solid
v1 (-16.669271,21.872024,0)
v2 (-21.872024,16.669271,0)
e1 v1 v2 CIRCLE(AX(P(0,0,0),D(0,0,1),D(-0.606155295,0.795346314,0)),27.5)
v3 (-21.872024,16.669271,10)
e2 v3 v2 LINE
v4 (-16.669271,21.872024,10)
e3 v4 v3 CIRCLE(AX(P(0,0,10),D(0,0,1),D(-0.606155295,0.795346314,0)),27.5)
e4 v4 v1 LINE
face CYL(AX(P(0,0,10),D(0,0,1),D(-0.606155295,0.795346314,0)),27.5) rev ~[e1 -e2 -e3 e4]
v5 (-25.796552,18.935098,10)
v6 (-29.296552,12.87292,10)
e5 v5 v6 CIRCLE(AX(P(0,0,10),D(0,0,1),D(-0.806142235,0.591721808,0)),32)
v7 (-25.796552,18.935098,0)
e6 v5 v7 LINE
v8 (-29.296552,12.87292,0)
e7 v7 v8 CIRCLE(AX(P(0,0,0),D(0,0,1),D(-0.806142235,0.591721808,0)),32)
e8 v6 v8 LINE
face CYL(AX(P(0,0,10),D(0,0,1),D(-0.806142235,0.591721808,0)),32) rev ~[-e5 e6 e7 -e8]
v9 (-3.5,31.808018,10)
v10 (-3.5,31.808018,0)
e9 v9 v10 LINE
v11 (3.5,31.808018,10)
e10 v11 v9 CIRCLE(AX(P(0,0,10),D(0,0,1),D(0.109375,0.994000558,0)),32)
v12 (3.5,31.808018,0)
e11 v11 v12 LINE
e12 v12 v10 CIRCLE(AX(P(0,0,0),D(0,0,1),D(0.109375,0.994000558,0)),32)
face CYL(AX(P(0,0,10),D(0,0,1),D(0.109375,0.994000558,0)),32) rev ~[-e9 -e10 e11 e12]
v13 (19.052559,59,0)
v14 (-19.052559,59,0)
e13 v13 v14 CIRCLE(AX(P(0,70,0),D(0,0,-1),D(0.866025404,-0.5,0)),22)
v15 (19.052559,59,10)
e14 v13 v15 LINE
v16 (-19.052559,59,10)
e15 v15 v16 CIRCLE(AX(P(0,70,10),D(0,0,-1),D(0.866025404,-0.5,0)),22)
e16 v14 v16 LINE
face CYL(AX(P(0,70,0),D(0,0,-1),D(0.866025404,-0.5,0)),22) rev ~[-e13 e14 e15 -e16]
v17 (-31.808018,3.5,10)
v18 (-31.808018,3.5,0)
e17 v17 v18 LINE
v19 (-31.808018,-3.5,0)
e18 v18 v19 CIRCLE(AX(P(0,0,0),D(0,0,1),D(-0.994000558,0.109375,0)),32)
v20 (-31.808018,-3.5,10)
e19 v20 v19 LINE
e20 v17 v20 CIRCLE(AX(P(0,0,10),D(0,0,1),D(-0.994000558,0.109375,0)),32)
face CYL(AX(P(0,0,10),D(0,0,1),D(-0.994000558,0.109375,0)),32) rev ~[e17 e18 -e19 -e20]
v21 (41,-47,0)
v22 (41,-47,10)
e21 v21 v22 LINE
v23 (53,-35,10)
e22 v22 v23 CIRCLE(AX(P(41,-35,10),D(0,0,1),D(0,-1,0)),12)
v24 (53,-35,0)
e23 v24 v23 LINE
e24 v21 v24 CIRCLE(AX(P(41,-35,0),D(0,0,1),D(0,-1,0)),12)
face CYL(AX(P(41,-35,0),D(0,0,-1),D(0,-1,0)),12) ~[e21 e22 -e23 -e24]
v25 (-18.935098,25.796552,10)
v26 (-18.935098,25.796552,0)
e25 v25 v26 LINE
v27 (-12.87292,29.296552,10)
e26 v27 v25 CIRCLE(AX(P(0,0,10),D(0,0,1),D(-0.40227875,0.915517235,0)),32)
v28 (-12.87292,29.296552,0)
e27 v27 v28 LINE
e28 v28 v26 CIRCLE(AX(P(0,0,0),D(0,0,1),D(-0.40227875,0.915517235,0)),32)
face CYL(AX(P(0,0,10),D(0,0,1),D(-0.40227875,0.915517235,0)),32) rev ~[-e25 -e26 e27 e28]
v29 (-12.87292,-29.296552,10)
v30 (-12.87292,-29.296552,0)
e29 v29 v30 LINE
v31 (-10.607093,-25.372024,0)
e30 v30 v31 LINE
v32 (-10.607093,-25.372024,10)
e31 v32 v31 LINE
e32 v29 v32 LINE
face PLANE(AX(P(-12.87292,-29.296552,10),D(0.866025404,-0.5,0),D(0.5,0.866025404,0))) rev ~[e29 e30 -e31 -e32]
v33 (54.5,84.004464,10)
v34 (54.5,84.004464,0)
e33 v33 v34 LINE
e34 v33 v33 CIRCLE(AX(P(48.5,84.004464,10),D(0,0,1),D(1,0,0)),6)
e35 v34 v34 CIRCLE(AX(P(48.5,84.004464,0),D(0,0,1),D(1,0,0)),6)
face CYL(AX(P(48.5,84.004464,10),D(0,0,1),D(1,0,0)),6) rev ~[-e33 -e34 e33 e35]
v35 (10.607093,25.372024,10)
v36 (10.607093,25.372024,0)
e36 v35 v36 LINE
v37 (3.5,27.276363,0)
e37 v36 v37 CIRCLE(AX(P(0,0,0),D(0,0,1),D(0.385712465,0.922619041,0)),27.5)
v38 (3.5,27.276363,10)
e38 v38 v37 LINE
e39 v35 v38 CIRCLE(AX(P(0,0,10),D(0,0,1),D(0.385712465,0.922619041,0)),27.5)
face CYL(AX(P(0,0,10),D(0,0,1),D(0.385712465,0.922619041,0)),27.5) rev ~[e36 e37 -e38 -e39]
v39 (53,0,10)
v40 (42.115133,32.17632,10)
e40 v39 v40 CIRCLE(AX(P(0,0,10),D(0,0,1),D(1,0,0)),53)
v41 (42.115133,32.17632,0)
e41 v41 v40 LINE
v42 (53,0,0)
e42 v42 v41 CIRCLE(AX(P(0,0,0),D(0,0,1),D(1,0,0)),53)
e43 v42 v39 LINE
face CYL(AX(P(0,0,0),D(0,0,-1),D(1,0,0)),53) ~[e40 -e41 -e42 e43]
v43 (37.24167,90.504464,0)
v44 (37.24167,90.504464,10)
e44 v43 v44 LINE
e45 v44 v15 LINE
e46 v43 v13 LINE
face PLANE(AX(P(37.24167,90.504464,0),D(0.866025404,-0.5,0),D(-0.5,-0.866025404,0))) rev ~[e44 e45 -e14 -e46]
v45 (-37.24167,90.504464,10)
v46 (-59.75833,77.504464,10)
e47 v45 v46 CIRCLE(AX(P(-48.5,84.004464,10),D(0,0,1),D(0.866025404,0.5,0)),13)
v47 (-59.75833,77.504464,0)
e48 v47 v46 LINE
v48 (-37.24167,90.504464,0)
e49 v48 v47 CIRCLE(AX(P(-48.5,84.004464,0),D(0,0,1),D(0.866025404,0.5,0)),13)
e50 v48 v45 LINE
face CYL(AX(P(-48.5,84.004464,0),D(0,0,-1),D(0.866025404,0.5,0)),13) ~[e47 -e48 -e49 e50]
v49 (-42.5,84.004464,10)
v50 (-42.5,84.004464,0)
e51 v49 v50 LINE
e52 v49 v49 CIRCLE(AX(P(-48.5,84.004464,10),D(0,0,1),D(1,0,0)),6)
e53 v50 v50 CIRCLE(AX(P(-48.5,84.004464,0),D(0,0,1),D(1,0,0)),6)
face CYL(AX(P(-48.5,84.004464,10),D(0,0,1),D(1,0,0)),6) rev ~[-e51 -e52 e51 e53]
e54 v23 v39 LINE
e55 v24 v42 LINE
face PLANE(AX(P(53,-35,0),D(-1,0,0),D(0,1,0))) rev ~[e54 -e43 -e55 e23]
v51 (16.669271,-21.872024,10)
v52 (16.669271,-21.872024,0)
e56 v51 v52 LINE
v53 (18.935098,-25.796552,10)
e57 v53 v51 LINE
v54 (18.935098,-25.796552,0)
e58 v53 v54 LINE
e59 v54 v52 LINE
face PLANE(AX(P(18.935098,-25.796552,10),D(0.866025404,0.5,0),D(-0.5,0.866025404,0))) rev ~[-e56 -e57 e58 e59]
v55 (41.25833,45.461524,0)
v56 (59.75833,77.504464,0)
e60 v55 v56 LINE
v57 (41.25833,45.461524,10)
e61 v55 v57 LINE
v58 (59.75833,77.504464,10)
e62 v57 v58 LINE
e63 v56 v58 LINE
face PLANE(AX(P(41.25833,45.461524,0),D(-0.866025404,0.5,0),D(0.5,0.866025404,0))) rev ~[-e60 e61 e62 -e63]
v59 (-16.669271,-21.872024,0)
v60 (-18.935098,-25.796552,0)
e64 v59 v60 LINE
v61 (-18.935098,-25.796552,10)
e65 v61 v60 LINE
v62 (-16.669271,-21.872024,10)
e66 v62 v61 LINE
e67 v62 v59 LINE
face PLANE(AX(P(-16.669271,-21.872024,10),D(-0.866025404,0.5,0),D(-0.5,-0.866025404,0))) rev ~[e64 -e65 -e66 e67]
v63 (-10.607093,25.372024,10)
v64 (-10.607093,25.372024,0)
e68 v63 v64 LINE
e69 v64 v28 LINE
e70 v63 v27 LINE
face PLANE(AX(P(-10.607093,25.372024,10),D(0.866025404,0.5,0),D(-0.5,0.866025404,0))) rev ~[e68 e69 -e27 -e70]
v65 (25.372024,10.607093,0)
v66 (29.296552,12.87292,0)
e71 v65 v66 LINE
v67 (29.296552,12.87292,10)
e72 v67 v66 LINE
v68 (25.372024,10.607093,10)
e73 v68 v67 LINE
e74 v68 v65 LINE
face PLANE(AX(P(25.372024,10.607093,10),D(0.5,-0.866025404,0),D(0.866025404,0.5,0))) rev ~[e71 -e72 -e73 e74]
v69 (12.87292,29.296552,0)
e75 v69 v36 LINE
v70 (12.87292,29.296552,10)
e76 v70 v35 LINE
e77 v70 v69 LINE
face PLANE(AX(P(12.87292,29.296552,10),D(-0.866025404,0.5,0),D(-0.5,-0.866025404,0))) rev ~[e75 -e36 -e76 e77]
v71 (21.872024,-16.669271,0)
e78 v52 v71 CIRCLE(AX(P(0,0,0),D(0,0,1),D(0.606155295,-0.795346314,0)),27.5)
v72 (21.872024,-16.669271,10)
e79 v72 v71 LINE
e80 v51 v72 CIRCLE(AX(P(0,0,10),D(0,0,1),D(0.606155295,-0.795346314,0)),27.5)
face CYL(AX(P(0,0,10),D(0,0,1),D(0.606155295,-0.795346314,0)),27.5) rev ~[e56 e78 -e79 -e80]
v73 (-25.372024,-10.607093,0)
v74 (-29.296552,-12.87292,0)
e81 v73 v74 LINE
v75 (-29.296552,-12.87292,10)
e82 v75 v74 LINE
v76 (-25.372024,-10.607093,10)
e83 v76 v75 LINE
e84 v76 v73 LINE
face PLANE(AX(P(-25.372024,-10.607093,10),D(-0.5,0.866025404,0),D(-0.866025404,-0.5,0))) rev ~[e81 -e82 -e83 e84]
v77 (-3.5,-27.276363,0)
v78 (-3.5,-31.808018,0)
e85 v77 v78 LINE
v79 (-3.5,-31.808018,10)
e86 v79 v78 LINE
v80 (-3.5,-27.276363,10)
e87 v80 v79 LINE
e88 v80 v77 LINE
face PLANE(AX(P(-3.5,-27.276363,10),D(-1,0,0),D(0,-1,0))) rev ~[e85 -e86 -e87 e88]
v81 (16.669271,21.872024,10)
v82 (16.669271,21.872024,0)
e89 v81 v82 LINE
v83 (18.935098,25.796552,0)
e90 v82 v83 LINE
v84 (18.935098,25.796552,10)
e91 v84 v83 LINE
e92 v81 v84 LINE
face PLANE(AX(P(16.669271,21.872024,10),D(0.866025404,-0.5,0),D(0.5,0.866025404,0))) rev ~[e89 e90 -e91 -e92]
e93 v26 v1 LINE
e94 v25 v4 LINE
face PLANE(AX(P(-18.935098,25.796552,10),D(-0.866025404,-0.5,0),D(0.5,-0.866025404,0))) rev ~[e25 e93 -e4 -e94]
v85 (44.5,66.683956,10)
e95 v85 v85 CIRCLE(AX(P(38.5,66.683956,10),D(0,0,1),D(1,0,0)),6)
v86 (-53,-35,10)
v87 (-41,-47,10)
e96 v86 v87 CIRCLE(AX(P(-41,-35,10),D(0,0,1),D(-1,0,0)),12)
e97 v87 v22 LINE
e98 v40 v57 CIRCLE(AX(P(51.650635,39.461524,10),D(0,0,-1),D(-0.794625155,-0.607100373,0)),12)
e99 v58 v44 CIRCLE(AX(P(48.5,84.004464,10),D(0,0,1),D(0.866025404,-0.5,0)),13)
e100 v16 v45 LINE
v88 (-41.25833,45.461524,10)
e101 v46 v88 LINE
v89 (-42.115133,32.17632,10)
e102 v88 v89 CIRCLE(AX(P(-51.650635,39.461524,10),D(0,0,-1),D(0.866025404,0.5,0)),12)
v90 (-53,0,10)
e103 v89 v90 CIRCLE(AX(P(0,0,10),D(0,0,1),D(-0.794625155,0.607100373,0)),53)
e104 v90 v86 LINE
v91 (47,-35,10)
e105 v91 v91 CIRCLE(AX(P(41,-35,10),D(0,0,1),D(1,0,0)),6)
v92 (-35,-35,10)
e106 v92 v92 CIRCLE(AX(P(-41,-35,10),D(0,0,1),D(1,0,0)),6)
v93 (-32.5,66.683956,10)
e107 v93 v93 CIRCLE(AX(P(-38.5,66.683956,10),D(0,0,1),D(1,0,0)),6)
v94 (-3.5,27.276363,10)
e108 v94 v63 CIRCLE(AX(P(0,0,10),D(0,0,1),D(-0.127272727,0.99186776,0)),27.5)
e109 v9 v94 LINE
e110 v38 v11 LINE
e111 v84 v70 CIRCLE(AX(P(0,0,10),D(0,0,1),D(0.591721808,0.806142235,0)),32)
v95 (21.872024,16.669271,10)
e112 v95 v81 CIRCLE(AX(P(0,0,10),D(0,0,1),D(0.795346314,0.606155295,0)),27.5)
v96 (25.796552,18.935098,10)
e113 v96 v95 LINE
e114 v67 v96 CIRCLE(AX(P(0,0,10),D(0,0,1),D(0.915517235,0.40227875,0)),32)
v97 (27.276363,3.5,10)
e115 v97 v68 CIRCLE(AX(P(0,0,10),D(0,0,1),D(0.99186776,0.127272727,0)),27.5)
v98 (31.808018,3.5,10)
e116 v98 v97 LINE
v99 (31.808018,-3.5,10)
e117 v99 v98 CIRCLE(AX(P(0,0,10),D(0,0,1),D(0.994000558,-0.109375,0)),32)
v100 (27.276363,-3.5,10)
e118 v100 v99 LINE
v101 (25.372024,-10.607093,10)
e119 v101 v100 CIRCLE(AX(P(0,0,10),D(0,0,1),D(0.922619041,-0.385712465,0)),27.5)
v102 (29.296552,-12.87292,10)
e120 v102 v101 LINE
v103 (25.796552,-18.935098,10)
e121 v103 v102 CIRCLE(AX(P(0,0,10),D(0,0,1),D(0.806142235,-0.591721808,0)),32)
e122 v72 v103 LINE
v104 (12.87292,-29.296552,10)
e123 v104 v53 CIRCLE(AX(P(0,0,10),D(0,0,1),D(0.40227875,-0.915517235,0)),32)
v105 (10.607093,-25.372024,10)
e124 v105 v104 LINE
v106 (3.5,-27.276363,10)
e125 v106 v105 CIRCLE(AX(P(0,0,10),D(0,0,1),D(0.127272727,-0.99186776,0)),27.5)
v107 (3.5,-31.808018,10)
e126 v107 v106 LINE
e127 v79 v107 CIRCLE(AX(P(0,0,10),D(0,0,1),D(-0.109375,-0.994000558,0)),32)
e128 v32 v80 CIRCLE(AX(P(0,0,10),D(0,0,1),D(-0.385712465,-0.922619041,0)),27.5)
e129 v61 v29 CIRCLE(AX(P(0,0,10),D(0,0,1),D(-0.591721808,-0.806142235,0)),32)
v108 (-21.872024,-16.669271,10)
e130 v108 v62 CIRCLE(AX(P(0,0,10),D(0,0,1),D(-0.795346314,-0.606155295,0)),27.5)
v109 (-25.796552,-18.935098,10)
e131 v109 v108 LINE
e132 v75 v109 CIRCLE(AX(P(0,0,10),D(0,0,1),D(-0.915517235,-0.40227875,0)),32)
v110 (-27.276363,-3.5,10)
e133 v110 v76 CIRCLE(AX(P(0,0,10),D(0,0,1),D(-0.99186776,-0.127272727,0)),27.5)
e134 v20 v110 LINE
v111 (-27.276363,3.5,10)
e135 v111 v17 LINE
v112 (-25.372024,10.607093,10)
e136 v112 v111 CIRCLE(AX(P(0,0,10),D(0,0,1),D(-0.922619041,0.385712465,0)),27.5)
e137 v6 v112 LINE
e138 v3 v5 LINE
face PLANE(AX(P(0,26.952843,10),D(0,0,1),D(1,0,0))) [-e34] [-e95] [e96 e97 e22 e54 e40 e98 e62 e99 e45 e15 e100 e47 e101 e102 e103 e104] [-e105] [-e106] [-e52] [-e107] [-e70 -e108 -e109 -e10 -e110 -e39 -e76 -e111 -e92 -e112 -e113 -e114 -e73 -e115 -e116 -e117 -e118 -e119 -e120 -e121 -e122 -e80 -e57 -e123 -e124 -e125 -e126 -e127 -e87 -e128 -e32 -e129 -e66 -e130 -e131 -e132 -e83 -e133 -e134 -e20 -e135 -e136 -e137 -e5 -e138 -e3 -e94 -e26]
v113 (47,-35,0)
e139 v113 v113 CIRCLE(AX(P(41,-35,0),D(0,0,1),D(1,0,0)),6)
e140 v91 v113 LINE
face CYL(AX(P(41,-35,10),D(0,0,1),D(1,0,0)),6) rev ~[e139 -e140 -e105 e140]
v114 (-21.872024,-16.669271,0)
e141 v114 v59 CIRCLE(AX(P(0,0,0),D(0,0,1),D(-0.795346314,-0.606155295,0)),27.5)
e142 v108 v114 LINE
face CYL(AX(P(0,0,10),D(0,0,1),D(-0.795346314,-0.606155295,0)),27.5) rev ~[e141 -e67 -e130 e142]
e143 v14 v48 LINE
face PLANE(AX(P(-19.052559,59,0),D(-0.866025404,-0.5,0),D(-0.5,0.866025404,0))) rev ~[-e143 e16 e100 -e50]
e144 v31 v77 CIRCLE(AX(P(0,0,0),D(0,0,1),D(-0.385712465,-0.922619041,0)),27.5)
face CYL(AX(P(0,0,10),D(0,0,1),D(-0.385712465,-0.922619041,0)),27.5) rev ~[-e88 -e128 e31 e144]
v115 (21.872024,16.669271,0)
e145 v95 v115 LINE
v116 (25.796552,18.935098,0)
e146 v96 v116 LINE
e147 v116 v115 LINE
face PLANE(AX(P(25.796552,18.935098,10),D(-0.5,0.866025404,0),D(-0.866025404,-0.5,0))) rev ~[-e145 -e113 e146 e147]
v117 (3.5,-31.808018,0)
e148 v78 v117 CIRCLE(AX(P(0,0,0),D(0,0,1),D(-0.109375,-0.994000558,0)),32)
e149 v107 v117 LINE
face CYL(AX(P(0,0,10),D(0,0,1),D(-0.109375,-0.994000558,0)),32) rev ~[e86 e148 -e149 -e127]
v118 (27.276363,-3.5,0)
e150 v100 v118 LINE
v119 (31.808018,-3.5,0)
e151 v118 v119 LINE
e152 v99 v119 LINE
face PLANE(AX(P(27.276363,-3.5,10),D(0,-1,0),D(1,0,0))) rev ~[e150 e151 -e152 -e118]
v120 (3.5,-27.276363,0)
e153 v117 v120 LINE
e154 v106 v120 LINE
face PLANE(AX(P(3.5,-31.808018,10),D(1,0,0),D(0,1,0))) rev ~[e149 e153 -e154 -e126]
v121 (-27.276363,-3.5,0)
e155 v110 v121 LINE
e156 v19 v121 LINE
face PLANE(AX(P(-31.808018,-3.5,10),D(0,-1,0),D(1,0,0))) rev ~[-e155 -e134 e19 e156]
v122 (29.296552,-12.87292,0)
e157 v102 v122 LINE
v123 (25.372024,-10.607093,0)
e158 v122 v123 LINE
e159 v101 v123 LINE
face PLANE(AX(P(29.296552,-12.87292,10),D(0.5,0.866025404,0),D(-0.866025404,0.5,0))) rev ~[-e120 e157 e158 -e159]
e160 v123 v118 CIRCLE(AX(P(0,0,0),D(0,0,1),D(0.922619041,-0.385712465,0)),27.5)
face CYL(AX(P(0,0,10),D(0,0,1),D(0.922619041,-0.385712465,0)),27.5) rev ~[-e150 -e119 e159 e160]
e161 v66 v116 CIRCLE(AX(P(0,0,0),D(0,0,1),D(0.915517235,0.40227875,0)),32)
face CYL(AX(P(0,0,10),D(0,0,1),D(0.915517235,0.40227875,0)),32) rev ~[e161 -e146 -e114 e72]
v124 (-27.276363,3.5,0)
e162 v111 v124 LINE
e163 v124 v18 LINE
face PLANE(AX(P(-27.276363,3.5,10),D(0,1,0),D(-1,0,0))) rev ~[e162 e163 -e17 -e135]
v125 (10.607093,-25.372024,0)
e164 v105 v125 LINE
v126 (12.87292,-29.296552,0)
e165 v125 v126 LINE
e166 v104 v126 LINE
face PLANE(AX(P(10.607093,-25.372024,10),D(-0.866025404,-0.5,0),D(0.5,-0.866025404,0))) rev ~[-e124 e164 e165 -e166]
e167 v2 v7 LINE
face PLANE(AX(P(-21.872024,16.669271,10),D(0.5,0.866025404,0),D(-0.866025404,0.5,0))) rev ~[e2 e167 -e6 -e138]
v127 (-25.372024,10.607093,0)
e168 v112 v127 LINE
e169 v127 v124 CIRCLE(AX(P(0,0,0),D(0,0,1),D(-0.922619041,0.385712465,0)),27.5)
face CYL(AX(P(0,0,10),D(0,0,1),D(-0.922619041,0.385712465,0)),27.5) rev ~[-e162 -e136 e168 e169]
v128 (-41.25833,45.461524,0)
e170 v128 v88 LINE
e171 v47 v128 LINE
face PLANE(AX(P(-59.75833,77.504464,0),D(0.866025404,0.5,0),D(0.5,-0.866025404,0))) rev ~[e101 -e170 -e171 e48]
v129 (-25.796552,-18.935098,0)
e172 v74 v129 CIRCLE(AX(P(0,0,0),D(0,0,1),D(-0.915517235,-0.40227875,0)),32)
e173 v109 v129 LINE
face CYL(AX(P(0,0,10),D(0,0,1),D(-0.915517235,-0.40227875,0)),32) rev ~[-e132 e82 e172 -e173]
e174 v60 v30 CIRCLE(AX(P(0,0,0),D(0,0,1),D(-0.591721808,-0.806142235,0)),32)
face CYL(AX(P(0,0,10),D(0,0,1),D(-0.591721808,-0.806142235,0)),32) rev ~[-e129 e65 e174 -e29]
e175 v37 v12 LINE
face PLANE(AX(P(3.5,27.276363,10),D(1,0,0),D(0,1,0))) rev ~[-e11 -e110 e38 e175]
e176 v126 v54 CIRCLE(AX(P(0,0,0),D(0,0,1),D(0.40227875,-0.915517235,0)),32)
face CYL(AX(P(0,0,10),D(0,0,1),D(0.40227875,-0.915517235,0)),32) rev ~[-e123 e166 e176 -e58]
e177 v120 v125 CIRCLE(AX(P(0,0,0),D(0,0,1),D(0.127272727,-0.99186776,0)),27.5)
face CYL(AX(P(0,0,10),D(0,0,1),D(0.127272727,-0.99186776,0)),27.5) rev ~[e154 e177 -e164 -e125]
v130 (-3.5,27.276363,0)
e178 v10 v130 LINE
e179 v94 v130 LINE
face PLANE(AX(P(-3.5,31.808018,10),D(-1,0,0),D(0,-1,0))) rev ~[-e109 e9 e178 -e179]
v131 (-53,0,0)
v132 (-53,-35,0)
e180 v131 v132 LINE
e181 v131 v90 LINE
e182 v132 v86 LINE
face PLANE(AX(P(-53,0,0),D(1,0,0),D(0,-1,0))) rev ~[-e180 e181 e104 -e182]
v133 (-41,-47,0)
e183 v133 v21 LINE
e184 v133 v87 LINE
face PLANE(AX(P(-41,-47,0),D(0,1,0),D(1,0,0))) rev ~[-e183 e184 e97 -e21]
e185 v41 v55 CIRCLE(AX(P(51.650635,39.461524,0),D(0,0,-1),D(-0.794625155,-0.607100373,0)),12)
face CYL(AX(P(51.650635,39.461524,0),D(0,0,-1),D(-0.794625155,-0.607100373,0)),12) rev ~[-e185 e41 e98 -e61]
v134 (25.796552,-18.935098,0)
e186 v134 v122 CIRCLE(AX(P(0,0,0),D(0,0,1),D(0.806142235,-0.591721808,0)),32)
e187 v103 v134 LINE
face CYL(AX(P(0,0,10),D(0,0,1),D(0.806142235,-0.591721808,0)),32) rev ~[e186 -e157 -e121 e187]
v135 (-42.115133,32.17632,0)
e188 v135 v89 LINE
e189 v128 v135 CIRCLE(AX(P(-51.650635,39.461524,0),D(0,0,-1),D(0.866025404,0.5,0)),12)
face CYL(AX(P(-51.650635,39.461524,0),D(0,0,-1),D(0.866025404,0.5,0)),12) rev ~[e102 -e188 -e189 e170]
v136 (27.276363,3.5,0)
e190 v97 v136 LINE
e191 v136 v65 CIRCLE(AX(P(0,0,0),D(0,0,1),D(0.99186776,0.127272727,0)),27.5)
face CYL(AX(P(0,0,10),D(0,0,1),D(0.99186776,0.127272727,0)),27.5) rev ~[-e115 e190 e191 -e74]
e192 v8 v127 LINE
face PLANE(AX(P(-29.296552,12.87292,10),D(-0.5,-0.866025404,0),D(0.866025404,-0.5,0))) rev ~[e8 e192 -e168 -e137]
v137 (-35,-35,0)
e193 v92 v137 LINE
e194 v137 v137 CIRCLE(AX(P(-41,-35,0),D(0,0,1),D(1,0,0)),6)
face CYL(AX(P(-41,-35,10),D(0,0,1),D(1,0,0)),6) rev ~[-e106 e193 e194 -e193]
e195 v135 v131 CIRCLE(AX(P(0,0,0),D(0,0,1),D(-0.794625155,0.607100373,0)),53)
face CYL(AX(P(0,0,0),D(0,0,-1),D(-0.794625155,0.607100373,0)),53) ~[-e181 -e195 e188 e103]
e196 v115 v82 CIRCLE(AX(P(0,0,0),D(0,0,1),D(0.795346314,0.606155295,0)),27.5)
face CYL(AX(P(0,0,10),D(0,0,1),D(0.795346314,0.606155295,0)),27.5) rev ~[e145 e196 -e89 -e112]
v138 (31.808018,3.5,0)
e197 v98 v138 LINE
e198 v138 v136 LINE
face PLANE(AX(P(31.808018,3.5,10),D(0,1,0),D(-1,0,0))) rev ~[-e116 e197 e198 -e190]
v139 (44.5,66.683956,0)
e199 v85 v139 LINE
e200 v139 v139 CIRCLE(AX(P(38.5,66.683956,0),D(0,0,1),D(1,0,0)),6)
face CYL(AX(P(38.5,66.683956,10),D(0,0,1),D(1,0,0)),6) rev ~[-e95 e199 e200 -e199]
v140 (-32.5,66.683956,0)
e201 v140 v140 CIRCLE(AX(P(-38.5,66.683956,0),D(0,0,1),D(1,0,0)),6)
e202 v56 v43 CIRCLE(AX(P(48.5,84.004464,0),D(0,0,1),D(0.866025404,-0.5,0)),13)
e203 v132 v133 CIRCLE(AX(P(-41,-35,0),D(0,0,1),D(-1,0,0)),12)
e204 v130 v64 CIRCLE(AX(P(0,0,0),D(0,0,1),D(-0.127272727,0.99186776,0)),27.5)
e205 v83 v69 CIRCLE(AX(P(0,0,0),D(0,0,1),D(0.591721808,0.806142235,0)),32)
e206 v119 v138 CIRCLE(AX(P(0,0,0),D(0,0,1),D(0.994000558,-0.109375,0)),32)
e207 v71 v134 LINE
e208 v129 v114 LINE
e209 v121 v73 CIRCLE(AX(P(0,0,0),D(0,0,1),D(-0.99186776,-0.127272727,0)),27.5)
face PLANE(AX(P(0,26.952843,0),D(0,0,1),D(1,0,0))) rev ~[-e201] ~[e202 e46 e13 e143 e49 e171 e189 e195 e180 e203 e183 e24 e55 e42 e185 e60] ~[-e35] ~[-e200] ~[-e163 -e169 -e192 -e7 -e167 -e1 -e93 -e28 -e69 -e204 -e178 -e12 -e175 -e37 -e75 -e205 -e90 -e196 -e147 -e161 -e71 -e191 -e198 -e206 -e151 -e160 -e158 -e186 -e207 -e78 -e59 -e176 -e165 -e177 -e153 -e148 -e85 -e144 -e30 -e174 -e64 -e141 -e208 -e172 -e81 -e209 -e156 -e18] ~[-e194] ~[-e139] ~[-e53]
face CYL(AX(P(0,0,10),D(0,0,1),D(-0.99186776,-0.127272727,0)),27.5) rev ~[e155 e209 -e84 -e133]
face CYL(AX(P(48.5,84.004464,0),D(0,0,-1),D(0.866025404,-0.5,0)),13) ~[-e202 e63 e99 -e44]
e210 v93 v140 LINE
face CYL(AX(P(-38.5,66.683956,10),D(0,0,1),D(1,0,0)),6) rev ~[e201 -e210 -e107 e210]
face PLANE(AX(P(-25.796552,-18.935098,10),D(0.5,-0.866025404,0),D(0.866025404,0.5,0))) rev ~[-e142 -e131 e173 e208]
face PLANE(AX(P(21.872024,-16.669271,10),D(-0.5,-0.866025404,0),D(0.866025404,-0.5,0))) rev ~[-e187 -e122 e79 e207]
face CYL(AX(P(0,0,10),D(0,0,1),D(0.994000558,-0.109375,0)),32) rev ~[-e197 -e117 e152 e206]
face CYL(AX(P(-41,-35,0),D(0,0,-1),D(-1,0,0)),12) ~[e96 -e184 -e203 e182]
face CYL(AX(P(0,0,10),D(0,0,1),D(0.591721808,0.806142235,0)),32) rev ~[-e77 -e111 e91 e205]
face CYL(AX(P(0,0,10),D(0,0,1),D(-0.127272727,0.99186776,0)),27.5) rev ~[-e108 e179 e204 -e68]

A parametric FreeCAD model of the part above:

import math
import FreeCAD as App
import Part
import Sketcher

V = App.Vector
Q = App.Units.Quantity

doc = App.newDocument("Part")
body = doc.addObject("PartDesign::Body", "Body")

# Sketch on XY plane
sketch1 = body.newObject("Sketcher::SketchObject", "Sketch")
sketch1.AttachmentSupport = (doc.getObject("XY_Plane"), [""])
sketch1.MapMode = "FlatFace"
sketch1.addGeometry(Part.LineSegment(V(-60, 78, 0), V(-41, 45, 0)), False)
sketch1.addGeometry(Part.ArcOfCircle(Part.Circle(V(-52, 39, 0), V(0, 0, 1), 12), math.radians(-37), math.radians(30)), False)
sketch1.addGeometry(Part.ArcOfCircle(Part.Circle(V(0, 0, 0), V(0, 0, 1), 53), math.radians(143), math.radians(180)), False)
sketch1.addGeometry(Part.LineSegment(V(-53, 0, 0), V(-53, -35, 0)), False)
sketch1.addGeometry(Part.ArcOfCircle(Part.Circle(V(-41, -35, 0), V(0, 0, 1), 12), math.radians(-180), math.radians(-90)), False)
sketch1.addGeometry(Part.LineSegment(V(-41, -47, 0), V(41, -47, 0)), False)
sketch1.addGeometry(Part.ArcOfCircle(Part.Circle(V(41, -35, 0), V(0, 0, 1), 12), math.radians(-90), math.radians(0)), False)
sketch1.addGeometry(Part.LineSegment(V(53, -35, 0), V(53, 0, 0)), False)
sketch1.addGeometry(Part.ArcOfCircle(Part.Circle(V(0, 0, 0), V(0, 0, 1), 53), math.radians(0), math.radians(37)), False)
sketch1.addGeometry(Part.ArcOfCircle(Part.Circle(V(52, 39, 0), V(0, 0, 1), 12), math.radians(150), math.radians(217)), False)
sketch1.addGeometry(Part.LineSegment(V(41, 45, 0), V(60, 78, 0)), False)
sketch1.addGeometry(Part.ArcOfCircle(Part.Circle(V(48, 84, 0), V(0, 0, 1), 13), math.radians(-30), math.radians(150)), False)
sketch1.addGeometry(Part.LineSegment(V(37, 91, 0), V(19, 59, 0)), False)
sketch1.addGeometry(Part.ArcOfCircle(Part.Circle(V(0, 70, 0), V(0, 0, 1), 22), math.radians(-150), math.radians(-30)), False)
sketch1.addGeometry(Part.LineSegment(V(-19, 59, 0), V(-37, 91, 0)), False)
sketch1.addGeometry(Part.ArcOfCircle(Part.Circle(V(-48, 84, 0), V(0, 0, 1), 13), math.radians(30), math.radians(210)), False)
sketch1.addConstraint(Sketcher.Constraint("Tangent", 0, 2, 1, 2))
sketch1.addConstraint(Sketcher.Constraint("Tangent", 1, 1, 2, 1))
sketch1.addConstraint(Sketcher.Constraint("Tangent", 2, 2, 3, 1))
sketch1.addConstraint(Sketcher.Constraint("Tangent", 3, 2, 4, 1))
sketch1.addConstraint(Sketcher.Constraint("Tangent", 4, 2, 5, 1))
sketch1.addConstraint(Sketcher.Constraint("Tangent", 5, 2, 6, 1))
sketch1.addConstraint(Sketcher.Constraint("Tangent", 6, 2, 7, 1))
sketch1.addConstraint(Sketcher.Constraint("Tangent", 7, 2, 8, 1))
sketch1.addConstraint(Sketcher.Constraint("Tangent", 8, 2, 9, 2))
sketch1.addConstraint(Sketcher.Constraint("Tangent", 9, 1, 10, 1))
sketch1.addConstraint(Sketcher.Constraint("Tangent", 10, 2, 11, 1))
sketch1.addConstraint(Sketcher.Constraint("Tangent", 11, 2, 12, 1))
sketch1.addConstraint(Sketcher.Constraint("Tangent", 12, 2, 13, 2))
sketch1.addConstraint(Sketcher.Constraint("Tangent", 13, 1, 14, 1))
sketch1.addConstraint(Sketcher.Constraint("Tangent", 14, 2, 15, 1))
sketch1.addConstraint(Sketcher.Constraint("Tangent", 15, 2, 0, 1))
sketch1.addConstraint(Sketcher.Constraint("Vertical", 3))
sketch1.addConstraint(Sketcher.Constraint("Horizontal", 5))
sketch1.addConstraint(Sketcher.Constraint("Vertical", 7))
sketch1.addConstraint(Sketcher.Constraint("Coincident", 2, 3, -1, 1))
sketch1.addConstraint(Sketcher.Constraint("Coincident", 8, 3, -1, 1))
sketch1.addConstraint(Sketcher.Constraint("Equal", 1, 4))
sketch1.addConstraint(Sketcher.Constraint("Equal", 4, 6))
sketch1.addConstraint(Sketcher.Constraint("Equal", 2, 8))
sketch1.addConstraint(Sketcher.Constraint("Equal", 6, 9))
sketch1.addConstraint(Sketcher.Constraint("Equal", 11, 15))
sketch1.addConstraint(Sketcher.Constraint("Symmetric", 11, 3, 15, 3, -2))
sketch1.addConstraint(Sketcher.Constraint("PointOnObject", 13, 3, -2))
sketch1.addConstraint(Sketcher.Constraint("Parallel", 10, 12))
sketch1.addConstraint(Sketcher.Constraint("Parallel", 0, 14))
sketch1.addConstraint(Sketcher.Constraint("Radius", 1, 12.0))
sketch1.addConstraint(Sketcher.Constraint("Radius", 2, 53.0))
sketch1.addConstraint(Sketcher.Constraint("Radius", 11, 13.0))
sketch1.addConstraint(Sketcher.Constraint("Radius", 13, 22.0))
sketch1.addConstraint(Sketcher.Constraint("DistanceY", 3, 2, 3, 1, 35.0))
sketch1.addConstraint(Sketcher.Constraint("Angle", 0, Q("-60 deg")))
sketch1.addConstraint(Sketcher.Constraint("Distance", 0, 37.0))
sketch1.addConstraint(Sketcher.Constraint("DistanceY", -1, 1, 13, 3, 70.0))
pad1 = body.newObject("PartDesign::Pad", "Pad")
pad1.Profile = sketch1
pad1.Length = 10

# Sketch on XY plane
sketch2 = body.newObject("Sketcher::SketchObject", "Sketch001")
sketch2.AttachmentSupport = (doc.getObject("XY_Plane"), [""])
sketch2.MapMode = "FlatFace"
sketch2.AttachmentOffset = App.Placement(V(0, 0, 10), App.Rotation())
sketch2.addGeometry(Part.Circle(V(-41, -35, 0), V(0, 0, 1), 6), False)
sketch2.addGeometry(Part.Circle(V(41, -35, 0), V(0, 0, 1), 6), False)
sketch2.addGeometry(Part.Circle(V(-48.5, 84, 0), V(0, 0, 1), 6), False)
sketch2.addGeometry(Part.Circle(V(48.5, 84, 0), V(0, 0, 1), 6), False)
sketch2.addGeometry(Part.Circle(V(-38.5, 66.7, 0), V(0, 0, 1), 6), False)
sketch2.addGeometry(Part.Circle(V(38.5, 66.7, 0), V(0, 0, 1), 6), False)
sketch2.addGeometry(Part.LineSegment(V(-3.5, 31.8, 0), V(-3.5, 27.3, 0)), False)
sketch2.addGeometry(Part.ArcOfCircle(Part.Circle(V(0, 0, 0), V(0, 0, 1), 27.5), math.radians(97.31), math.radians(112.69)), False)
sketch2.addGeometry(Part.LineSegment(V(-10.6, 25.4, 0), V(-12.9, 29.3, 0)), False)
sketch2.addGeometry(Part.ArcOfCircle(Part.Circle(V(0, 0, 0), V(0, 0, 1), 32), math.radians(113.72), math.radians(126.28)), False)
sketch2.addGeometry(Part.LineSegment(V(-18.9, 25.8, 0), V(-16.7, 21.9, 0)), False)
sketch2.addGeometry(Part.ArcOfCircle(Part.Circle(V(0, 0, 0), V(0, 0, 1), 27.5), math.radians(127.31), math.radians(142.69)), False)
sketch2.addGeometry(Part.LineSegment(V(-21.9, 16.7, 0), V(-25.8, 18.9, 0)), False)
sketch2.addGeometry(Part.ArcOfCircle(Part.Circle(V(0, 0, 0), V(0, 0, 1), 32), math.radians(143.72), math.radians(156.28)), False)
sketch2.addGeometry(Part.LineSegment(V(-29.3, 12.9, 0), V(-25.4, 10.6, 0)), False)
sketch2.addGeometry(Part.ArcOfCircle(Part.Circle(V(0, 0, 0), V(0, 0, 1), 27.5), math.radians(157.31), math.radians(172.69)), False)
sketch2.addGeometry(Part.LineSegment(V(-27.3, 3.5, 0), V(-31.8, 3.5, 0)), False)
sketch2.addGeometry(Part.ArcOfCircle(Part.Circle(V(0, 0, 0), V(0, 0, 1), 32), math.radians(173.72), math.radians(186.28)), False)
sketch2.addGeometry(Part.LineSegment(V(-31.8, -3.5, 0), V(-27.3, -3.5, 0)), False)
sketch2.addGeometry(Part.ArcOfCircle(Part.Circle(V(0, 0, 0), V(0, 0, 1), 27.5), math.radians(-172.69), math.radians(-157.31)), False)
sketch2.addGeometry(Part.LineSegment(V(-25.4, -10.6, 0), V(-29.3, -12.9, 0)), False)
sketch2.addGeometry(Part.ArcOfCircle(Part.Circle(V(0, 0, 0), V(0, 0, 1), 32), math.radians(-156.28), math.radians(-143.72)), False)
sketch2.addGeometry(Part.LineSegment(V(-25.8, -18.9, 0), V(-21.9, -16.7, 0)), False)
sketch2.addGeometry(Part.ArcOfCircle(Part.Circle(V(0, 0, 0), V(0, 0, 1), 27.5), math.radians(-142.69), math.radians(-127.31)), False)
sketch2.addGeometry(Part.LineSegment(V(-16.7, -21.9, 0), V(-18.9, -25.8, 0)), False)
sketch2.addGeometry(Part.ArcOfCircle(Part.Circle(V(0, 0, 0), V(0, 0, 1), 32), math.radians(-126.28), math.radians(-113.72)), False)
sketch2.addGeometry(Part.LineSegment(V(-12.9, -29.3, 0), V(-10.6, -25.4, 0)), False)
sketch2.addGeometry(Part.ArcOfCircle(Part.Circle(V(0, 0, 0), V(0, 0, 1), 27.5), math.radians(-112.69), math.radians(-97.31)), False)
sketch2.addGeometry(Part.LineSegment(V(-3.5, -27.3, 0), V(-3.5, -31.8, 0)), False)
sketch2.addGeometry(Part.ArcOfCircle(Part.Circle(V(0, 0, 0), V(0, 0, 1), 32), math.radians(-96.28), math.radians(-83.72)), False)
sketch2.addGeometry(Part.LineSegment(V(3.5, -31.8, 0), V(3.5, -27.3, 0)), False)
sketch2.addGeometry(Part.ArcOfCircle(Part.Circle(V(0, 0, 0), V(0, 0, 1), 27.5), math.radians(-82.69), math.radians(-67.31)), False)
sketch2.addGeometry(Part.LineSegment(V(10.6, -25.4, 0), V(12.9, -29.3, 0)), False)
sketch2.addGeometry(Part.ArcOfCircle(Part.Circle(V(0, 0, 0), V(0, 0, 1), 32), math.radians(-66.28), math.radians(-53.72)), False)
sketch2.addGeometry(Part.LineSegment(V(18.9, -25.8, 0), V(16.7, -21.9, 0)), False)
sketch2.addGeometry(Part.ArcOfCircle(Part.Circle(V(0, 0, 0), V(0, 0, 1), 27.5), math.radians(-52.69), math.radians(-37.31)), False)
sketch2.addGeometry(Part.LineSegment(V(21.9, -16.7, 0), V(25.8, -18.9, 0)), False)
sketch2.addGeometry(Part.ArcOfCircle(Part.Circle(V(0, 0, 0), V(0, 0, 1), 32), math.radians(-36.28), math.radians(-23.72)), False)
sketch2.addGeometry(Part.LineSegment(V(29.3, -12.9, 0), V(25.4, -10.6, 0)), False)
sketch2.addGeometry(Part.ArcOfCircle(Part.Circle(V(0, 0, 0), V(0, 0, 1), 27.5), math.radians(-22.69), math.radians(-7.31)), False)
sketch2.addGeometry(Part.LineSegment(V(27.3, -3.5, 0), V(31.8, -3.5, 0)), False)
sketch2.addGeometry(Part.ArcOfCircle(Part.Circle(V(0, 0, 0), V(0, 0, 1), 32), math.radians(-6.28), math.radians(6.28)), False)
sketch2.addGeometry(Part.LineSegment(V(31.8, 3.5, 0), V(27.3, 3.5, 0)), False)
sketch2.addGeometry(Part.ArcOfCircle(Part.Circle(V(0, 0, 0), V(0, 0, 1), 27.5), math.radians(7.31), math.radians(22.69)), False)
sketch2.addGeometry(Part.LineSegment(V(25.4, 10.6, 0), V(29.3, 12.9, 0)), False)
sketch2.addGeometry(Part.ArcOfCircle(Part.Circle(V(0, 0, 0), V(0, 0, 1), 32), math.radians(23.72), math.radians(36.28)), False)
sketch2.addGeometry(Part.LineSegment(V(25.8, 18.9, 0), V(21.9, 16.7, 0)), False)
sketch2.addGeometry(Part.ArcOfCircle(Part.Circle(V(0, 0, 0), V(0, 0, 1), 27.5), math.radians(37.31), math.radians(52.69)), False)
sketch2.addGeometry(Part.LineSegment(V(16.7, 21.9, 0), V(18.9, 25.8, 0)), False)
sketch2.addGeometry(Part.ArcOfCircle(Part.Circle(V(0, 0, 0), V(0, 0, 1), 32), math.radians(53.72), math.radians(66.28)), False)
sketch2.addGeometry(Part.LineSegment(V(12.9, 29.3, 0), V(10.6, 25.4, 0)), False)
sketch2.addGeometry(Part.ArcOfCircle(Part.Circle(V(0, 0, 0), V(0, 0, 1), 27.5), math.radians(67.31), math.radians(82.69)), False)
sketch2.addGeometry(Part.LineSegment(V(3.5, 27.3, 0), V(3.5, 31.8, 0)), False)
sketch2.addGeometry(Part.ArcOfCircle(Part.Circle(V(0, 0, 0), V(0, 0, 1), 32), math.radians(83.72), math.radians(96.28)), False)
sketch2.addConstraint(Sketcher.Constraint("Coincident", 6, 2, 7, 1))
sketch2.addConstraint(Sketcher.Constraint("Coincident", 7, 2, 8, 1))
sketch2.addConstraint(Sketcher.Constraint("Coincident", 8, 2, 9, 1))
sketch2.addConstraint(Sketcher.Constraint("Coincident", 9, 2, 10, 1))
sketch2.addConstraint(Sketcher.Constraint("Coincident", 10, 2, 11, 1))
sketch2.addConstraint(Sketcher.Constraint("Coincident", 11, 2, 12, 1))
sketch2.addConstraint(Sketcher.Constraint("Coincident", 12, 2, 13, 1))
sketch2.addConstraint(Sketcher.Constraint("Coincident", 13, 2, 14, 1))
sketch2.addConstraint(Sketcher.Constraint("Coincident", 14, 2, 15, 1))
sketch2.addConstraint(Sketcher.Constraint("Coincident", 15, 2, 16, 1))
sketch2.addConstraint(Sketcher.Constraint("Coincident", 16, 2, 17, 1))
sketch2.addConstraint(Sketcher.Constraint("Coincident", 17, 2, 18, 1))
sketch2.addConstraint(Sketcher.Constraint("Coincident", 18, 2, 19, 1))
sketch2.addConstraint(Sketcher.Constraint("Coincident", 19, 2, 20, 1))
sketch2.addConstraint(Sketcher.Constraint("Coincident", 20, 2, 21, 1))
sketch2.addConstraint(Sketcher.Constraint("Coincident", 21, 2, 22, 1))
sketch2.addConstraint(Sketcher.Constraint("Coincident", 22, 2, 23, 1))
sketch2.addConstraint(Sketcher.Constraint("Coincident", 23, 2, 24, 1))
sketch2.addConstraint(Sketcher.Constraint("Coincident", 24, 2, 25, 1))
sketch2.addConstraint(Sketcher.Constraint("Coincident", 25, 2, 26, 1))
sketch2.addConstraint(Sketcher.Constraint("Coincident", 26, 2, 27, 1))
sketch2.addConstraint(Sketcher.Constraint("Coincident", 27, 2, 28, 1))
sketch2.addConstraint(Sketcher.Constraint("Coincident", 28, 2, 29, 1))
sketch2.addConstraint(Sketcher.Constraint("Coincident", 29, 2, 30, 1))
sketch2.addConstraint(Sketcher.Constraint("Coincident", 30, 2, 31, 1))
sketch2.addConstraint(Sketcher.Constraint("Coincident", 31, 2, 32, 1))
sketch2.addConstraint(Sketcher.Constraint("Coincident", 32, 2, 33, 1))
sketch2.addConstraint(Sketcher.Constraint("Coincident", 33, 2, 34, 1))
sketch2.addConstraint(Sketcher.Constraint("Coincident", 34, 2, 35, 1))
sketch2.addConstraint(Sketcher.Constraint("Coincident", 35, 2, 36, 1))
sketch2.addConstraint(Sketcher.Constraint("Coincident", 36, 2, 37, 1))
sketch2.addConstraint(Sketcher.Constraint("Coincident", 37, 2, 38, 1))
sketch2.addConstraint(Sketcher.Constraint("Coincident", 38, 2, 39, 1))
sketch2.addConstraint(Sketcher.Constraint("Coincident", 39, 2, 40, 1))
sketch2.addConstraint(Sketcher.Constraint("Coincident", 40, 2, 41, 1))
sketch2.addConstraint(Sketcher.Constraint("Coincident", 41, 2, 42, 1))
sketch2.addConstraint(Sketcher.Constraint("Coincident", 42, 2, 43, 1))
sketch2.addConstraint(Sketcher.Constraint("Coincident", 43, 2, 44, 1))
sketch2.addConstraint(Sketcher.Constraint("Coincident", 44, 2, 45, 1))
sketch2.addConstraint(Sketcher.Constraint("Coincident", 45, 2, 46, 1))
sketch2.addConstraint(Sketcher.Constraint("Coincident", 46, 2, 47, 1))
sketch2.addConstraint(Sketcher.Constraint("Coincident", 47, 2, 48, 1))
sketch2.addConstraint(Sketcher.Constraint("Coincident", 48, 2, 49, 1))
sketch2.addConstraint(Sketcher.Constraint("Coincident", 49, 2, 50, 1))
sketch2.addConstraint(Sketcher.Constraint("Coincident", 50, 2, 51, 1))
sketch2.addConstraint(Sketcher.Constraint("Coincident", 51, 2, 52, 1))
sketch2.addConstraint(Sketcher.Constraint("Coincident", 52, 2, 53, 1))
sketch2.addConstraint(Sketcher.Constraint("Coincident", 53, 2, 6, 1))
sketch2.addConstraint(Sketcher.Constraint("Vertical", 6))
sketch2.addConstraint(Sketcher.Constraint("Horizontal", 16))
sketch2.addConstraint(Sketcher.Constraint("Horizontal", 18))
sketch2.addConstraint(Sketcher.Constraint("Vertical", 28))
sketch2.addConstraint(Sketcher.Constraint("Vertical", 30))
sketch2.addConstraint(Sketcher.Constraint("Horizontal", 40))
sketch2.addConstraint(Sketcher.Constraint("Horizontal", 42))
sketch2.addConstraint(Sketcher.Constraint("Vertical", 52))
sketch2.addConstraint(Sketcher.Constraint("Coincident", 7, 3, -1, 1))
sketch2.addConstraint(Sketcher.Constraint("Coincident", 9, 3, -1, 1))
sketch2.addConstraint(Sketcher.Constraint("Coincident", 11, 3, -1, 1))
sketch2.addConstraint(Sketcher.Constraint("Coincident", 13, 3, -1, 1))
sketch2.addConstraint(Sketcher.Constraint("Coincident", 15, 3, -1, 1))
sketch2.addConstraint(Sketcher.Constraint("Coincident", 17, 3, -1, 1))
sketch2.addConstraint(Sketcher.Constraint("Coincident", 19, 3, -1, 1))
sketch2.addConstraint(Sketcher.Constraint("Coincident", 21, 3, -1, 1))
sketch2.addConstraint(Sketcher.Constraint("Coincident", 23, 3, -1, 1))
sketch2.addConstraint(Sketcher.Constraint("Coincident", 25, 3, -1, 1))
sketch2.addConstraint(Sketcher.Constraint("Coincident", 27, 3, -1, 1))
sketch2.addConstraint(Sketcher.Constraint("Coincident", 29, 3, -1, 1))
sketch2.addConstraint(Sketcher.Constraint("Coincident", 31, 3, -1, 1))
sketch2.addConstraint(Sketcher.Constraint("Coincident", 33, 3, -1, 1))
sketch2.addConstraint(Sketcher.Constraint("Coincident", 35, 3, -1, 1))
sketch2.addConstraint(Sketcher.Constraint("Coincident", 37, 3, -1, 1))
sketch2.addConstraint(Sketcher.Constraint("Coincident", 39, 3, -1, 1))
sketch2.addConstraint(Sketcher.Constraint("Coincident", 41, 3, -1, 1))
sketch2.addConstraint(Sketcher.Constraint("Coincident", 43, 3, -1, 1))
sketch2.addConstraint(Sketcher.Constraint("Coincident", 45, 3, -1, 1))
sketch2.addConstraint(Sketcher.Constraint("Coincident", 47, 3, -1, 1))
sketch2.addConstraint(Sketcher.Constraint("Coincident", 49, 3, -1, 1))
sketch2.addConstraint(Sketcher.Constraint("Coincident", 51, 3, -1, 1))
sketch2.addConstraint(Sketcher.Constraint("Coincident", 53, 3, -1, 1))
sketch2.addConstraint(Sketcher.Constraint("Equal", 0, 1))
sketch2.addConstraint(Sketcher.Constraint("Equal", 1, 2))
sketch2.addConstraint(Sketcher.Constraint("Equal", 2, 3))
sketch2.addConstraint(Sketcher.Constraint("Equal", 3, 4))
sketch2.addConstraint(Sketcher.Constraint("Equal", 4, 5))
sketch2.addConstraint(Sketcher.Constraint("Equal", 7, 11))
sketch2.addConstraint(Sketcher.Constraint("Equal", 9, 13))
sketch2.addConstraint(Sketcher.Constraint("Equal", 11, 15))
sketch2.addConstraint(Sketcher.Constraint("Equal", 13, 17))
sketch2.addConstraint(Sketcher.Constraint("Equal", 15, 19))
sketch2.addConstraint(Sketcher.Constraint("Equal", 17, 21))
sketch2.addConstraint(Sketcher.Constraint("Equal", 19, 23))
sketch2.addConstraint(Sketcher.Constraint("Equal", 21, 25))
sketch2.addConstraint(Sketcher.Constraint("Equal", 23, 27))
sketch2.addConstraint(Sketcher.Constraint("Equal", 25, 29))
sketch2.addConstraint(Sketcher.Constraint("Equal", 27, 31))
sketch2.addConstraint(Sketcher.Constraint("Equal", 29, 33))
sketch2.addConstraint(Sketcher.Constraint("Equal", 31, 35))
sketch2.addConstraint(Sketcher.Constraint("Equal", 33, 37))
sketch2.addConstraint(Sketcher.Constraint("Equal", 35, 39))
sketch2.addConstraint(Sketcher.Constraint("Equal", 37, 41))
sketch2.addConstraint(Sketcher.Constraint("Equal", 39, 43))
sketch2.addConstraint(Sketcher.Constraint("Equal", 41, 45))
sketch2.addConstraint(Sketcher.Constraint("Equal", 43, 47))
sketch2.addConstraint(Sketcher.Constraint("Equal", 45, 49))
sketch2.addConstraint(Sketcher.Constraint("Equal", 47, 51))
sketch2.addConstraint(Sketcher.Constraint("Equal", 49, 53))
sketch2.addConstraint(Sketcher.Constraint("Symmetric", 0, 3, 1, 3, -2))
sketch2.addConstraint(Sketcher.Constraint("Symmetric", 2, 3, 3, 3, -2))
sketch2.addConstraint(Sketcher.Constraint("Symmetric", 4, 3, 5, 3, -2))
sketch2.addConstraint(Sketcher.Constraint("Parallel", 8, 10))
sketch2.addConstraint(Sketcher.Constraint("Parallel", 12, 14))
sketch2.addConstraint(Sketcher.Constraint("Perpendicular", 10, 20))
sketch2.addConstraint(Sketcher.Constraint("Parallel", 20, 22))
sketch2.addConstraint(Sketcher.Constraint("Perpendicular", 14, 24))
sketch2.addConstraint(Sketcher.Constraint("Parallel", 24, 26))
sketch2.addConstraint(Sketcher.Constraint("Perpendicular", 22, 32))
sketch2.addConstraint(Sketcher.Constraint("Parallel", 32, 34))
sketch2.addConstraint(Sketcher.Constraint("Perpendicular", 26, 36))
sketch2.addConstraint(Sketcher.Constraint("Parallel", 36, 38))
sketch2.addConstraint(Sketcher.Constraint("Perpendicular", 34, 44))
sketch2.addConstraint(Sketcher.Constraint("Parallel", 44, 46))
sketch2.addConstraint(Sketcher.Constraint("Perpendicular", 38, 48))
sketch2.addConstraint(Sketcher.Constraint("Parallel", 48, 50))
sketch2.addConstraint(Sketcher.Constraint("Horizontal", 28, 2, 29, 2))
sketch2.addConstraint(Sketcher.Constraint("Horizontal", 26, 2, 31, 2))
sketch2.addConstraint(Sketcher.Constraint("Horizontal", 25, 2, 32, 2))
sketch2.addConstraint(Sketcher.Constraint("Horizontal", 24, 2, 33, 2))
sketch2.addConstraint(Sketcher.Constraint("Horizontal", 22, 2, 35, 2))
sketch2.addConstraint(Sketcher.Constraint("Horizontal", 20, 2, 37, 2))
sketch2.addConstraint(Sketcher.Constraint("Horizontal", 18, 2, 39, 2))
sketch2.addConstraint(Sketcher.Constraint("Horizontal", 16, 2, 41, 2))
sketch2.addConstraint(Sketcher.Constraint("Horizontal", 14, 2, 43, 2))
sketch2.addConstraint(Sketcher.Constraint("Horizontal", 12, 2, 45, 2))
sketch2.addConstraint(Sketcher.Constraint("Horizontal", 10, 2, 47, 2))
sketch2.addConstraint(Sketcher.Constraint("Horizontal", 8, 2, 49, 2))
sketch2.addConstraint(Sketcher.Constraint("Horizontal", 6, 2, 51, 2))
sketch2.addConstraint(Sketcher.Constraint("Vertical", 16, 2, 17, 2))
sketch2.addConstraint(Sketcher.Constraint("Vertical", 14, 2, 19, 2))
sketch2.addConstraint(Sketcher.Constraint("Vertical", 12, 2, 21, 2))
sketch2.addConstraint(Sketcher.Constraint("Vertical", 10, 2, 23, 2))
sketch2.addConstraint(Sketcher.Constraint("Vertical", 8, 2, 25, 2))
sketch2.addConstraint(Sketcher.Constraint("Vertical", 6, 2, 27, 2))
sketch2.addConstraint(Sketcher.Constraint("Equal", 42, 6))
sketch2.addConstraint(Sketcher.Constraint("Equal", 8, 10))
sketch2.addConstraint(Sketcher.Constraint("Equal", 10, 12))
sketch2.addConstraint(Sketcher.Constraint("Equal", 12, 14))
sketch2.addConstraint(Sketcher.Constraint("Diameter", 0, 12.0))
sketch2.addConstraint(Sketcher.Constraint("Radius", 9, 32.0))
sketch2.addConstraint(Sketcher.Constraint("Radius", 7, 27.5))
sketch2.addConstraint(Sketcher.Constraint("Angle", 8, Q("120 deg")))
sketch2.addConstraint(Sketcher.Constraint("DistanceX", 0, 3, -1, 1, 41.0))
sketch2.addConstraint(Sketcher.Constraint("DistanceY", 0, 3, -1, 1, 35.0))
sketch2.addConstraint(Sketcher.Constraint("DistanceX", 2, 3, -1, 1, 48.5))
sketch2.addConstraint(Sketcher.Constraint("DistanceX", 4, 3, -1, 1, 38.5))
sketch2.addConstraint(Sketcher.Constraint("DistanceX", 6, 2, -1, 1, 3.5))
sketch2.addConstraint(Sketcher.Constraint("DistanceX", 8, 2, -1, 1, 12.87292))
sketch2.addConstraint(Sketcher.Constraint("DistanceY", -1, 1, 2, 3, 84.004464))
sketch2.addConstraint(Sketcher.Constraint("DistanceY", -1, 1, 4, 3, 66.683956))
pocket1 = body.newObject("PartDesign::Pocket", "Pocket")
pocket1.Profile = sketch2
pocket1.Type = "ThroughAll"

doc.recompute()
